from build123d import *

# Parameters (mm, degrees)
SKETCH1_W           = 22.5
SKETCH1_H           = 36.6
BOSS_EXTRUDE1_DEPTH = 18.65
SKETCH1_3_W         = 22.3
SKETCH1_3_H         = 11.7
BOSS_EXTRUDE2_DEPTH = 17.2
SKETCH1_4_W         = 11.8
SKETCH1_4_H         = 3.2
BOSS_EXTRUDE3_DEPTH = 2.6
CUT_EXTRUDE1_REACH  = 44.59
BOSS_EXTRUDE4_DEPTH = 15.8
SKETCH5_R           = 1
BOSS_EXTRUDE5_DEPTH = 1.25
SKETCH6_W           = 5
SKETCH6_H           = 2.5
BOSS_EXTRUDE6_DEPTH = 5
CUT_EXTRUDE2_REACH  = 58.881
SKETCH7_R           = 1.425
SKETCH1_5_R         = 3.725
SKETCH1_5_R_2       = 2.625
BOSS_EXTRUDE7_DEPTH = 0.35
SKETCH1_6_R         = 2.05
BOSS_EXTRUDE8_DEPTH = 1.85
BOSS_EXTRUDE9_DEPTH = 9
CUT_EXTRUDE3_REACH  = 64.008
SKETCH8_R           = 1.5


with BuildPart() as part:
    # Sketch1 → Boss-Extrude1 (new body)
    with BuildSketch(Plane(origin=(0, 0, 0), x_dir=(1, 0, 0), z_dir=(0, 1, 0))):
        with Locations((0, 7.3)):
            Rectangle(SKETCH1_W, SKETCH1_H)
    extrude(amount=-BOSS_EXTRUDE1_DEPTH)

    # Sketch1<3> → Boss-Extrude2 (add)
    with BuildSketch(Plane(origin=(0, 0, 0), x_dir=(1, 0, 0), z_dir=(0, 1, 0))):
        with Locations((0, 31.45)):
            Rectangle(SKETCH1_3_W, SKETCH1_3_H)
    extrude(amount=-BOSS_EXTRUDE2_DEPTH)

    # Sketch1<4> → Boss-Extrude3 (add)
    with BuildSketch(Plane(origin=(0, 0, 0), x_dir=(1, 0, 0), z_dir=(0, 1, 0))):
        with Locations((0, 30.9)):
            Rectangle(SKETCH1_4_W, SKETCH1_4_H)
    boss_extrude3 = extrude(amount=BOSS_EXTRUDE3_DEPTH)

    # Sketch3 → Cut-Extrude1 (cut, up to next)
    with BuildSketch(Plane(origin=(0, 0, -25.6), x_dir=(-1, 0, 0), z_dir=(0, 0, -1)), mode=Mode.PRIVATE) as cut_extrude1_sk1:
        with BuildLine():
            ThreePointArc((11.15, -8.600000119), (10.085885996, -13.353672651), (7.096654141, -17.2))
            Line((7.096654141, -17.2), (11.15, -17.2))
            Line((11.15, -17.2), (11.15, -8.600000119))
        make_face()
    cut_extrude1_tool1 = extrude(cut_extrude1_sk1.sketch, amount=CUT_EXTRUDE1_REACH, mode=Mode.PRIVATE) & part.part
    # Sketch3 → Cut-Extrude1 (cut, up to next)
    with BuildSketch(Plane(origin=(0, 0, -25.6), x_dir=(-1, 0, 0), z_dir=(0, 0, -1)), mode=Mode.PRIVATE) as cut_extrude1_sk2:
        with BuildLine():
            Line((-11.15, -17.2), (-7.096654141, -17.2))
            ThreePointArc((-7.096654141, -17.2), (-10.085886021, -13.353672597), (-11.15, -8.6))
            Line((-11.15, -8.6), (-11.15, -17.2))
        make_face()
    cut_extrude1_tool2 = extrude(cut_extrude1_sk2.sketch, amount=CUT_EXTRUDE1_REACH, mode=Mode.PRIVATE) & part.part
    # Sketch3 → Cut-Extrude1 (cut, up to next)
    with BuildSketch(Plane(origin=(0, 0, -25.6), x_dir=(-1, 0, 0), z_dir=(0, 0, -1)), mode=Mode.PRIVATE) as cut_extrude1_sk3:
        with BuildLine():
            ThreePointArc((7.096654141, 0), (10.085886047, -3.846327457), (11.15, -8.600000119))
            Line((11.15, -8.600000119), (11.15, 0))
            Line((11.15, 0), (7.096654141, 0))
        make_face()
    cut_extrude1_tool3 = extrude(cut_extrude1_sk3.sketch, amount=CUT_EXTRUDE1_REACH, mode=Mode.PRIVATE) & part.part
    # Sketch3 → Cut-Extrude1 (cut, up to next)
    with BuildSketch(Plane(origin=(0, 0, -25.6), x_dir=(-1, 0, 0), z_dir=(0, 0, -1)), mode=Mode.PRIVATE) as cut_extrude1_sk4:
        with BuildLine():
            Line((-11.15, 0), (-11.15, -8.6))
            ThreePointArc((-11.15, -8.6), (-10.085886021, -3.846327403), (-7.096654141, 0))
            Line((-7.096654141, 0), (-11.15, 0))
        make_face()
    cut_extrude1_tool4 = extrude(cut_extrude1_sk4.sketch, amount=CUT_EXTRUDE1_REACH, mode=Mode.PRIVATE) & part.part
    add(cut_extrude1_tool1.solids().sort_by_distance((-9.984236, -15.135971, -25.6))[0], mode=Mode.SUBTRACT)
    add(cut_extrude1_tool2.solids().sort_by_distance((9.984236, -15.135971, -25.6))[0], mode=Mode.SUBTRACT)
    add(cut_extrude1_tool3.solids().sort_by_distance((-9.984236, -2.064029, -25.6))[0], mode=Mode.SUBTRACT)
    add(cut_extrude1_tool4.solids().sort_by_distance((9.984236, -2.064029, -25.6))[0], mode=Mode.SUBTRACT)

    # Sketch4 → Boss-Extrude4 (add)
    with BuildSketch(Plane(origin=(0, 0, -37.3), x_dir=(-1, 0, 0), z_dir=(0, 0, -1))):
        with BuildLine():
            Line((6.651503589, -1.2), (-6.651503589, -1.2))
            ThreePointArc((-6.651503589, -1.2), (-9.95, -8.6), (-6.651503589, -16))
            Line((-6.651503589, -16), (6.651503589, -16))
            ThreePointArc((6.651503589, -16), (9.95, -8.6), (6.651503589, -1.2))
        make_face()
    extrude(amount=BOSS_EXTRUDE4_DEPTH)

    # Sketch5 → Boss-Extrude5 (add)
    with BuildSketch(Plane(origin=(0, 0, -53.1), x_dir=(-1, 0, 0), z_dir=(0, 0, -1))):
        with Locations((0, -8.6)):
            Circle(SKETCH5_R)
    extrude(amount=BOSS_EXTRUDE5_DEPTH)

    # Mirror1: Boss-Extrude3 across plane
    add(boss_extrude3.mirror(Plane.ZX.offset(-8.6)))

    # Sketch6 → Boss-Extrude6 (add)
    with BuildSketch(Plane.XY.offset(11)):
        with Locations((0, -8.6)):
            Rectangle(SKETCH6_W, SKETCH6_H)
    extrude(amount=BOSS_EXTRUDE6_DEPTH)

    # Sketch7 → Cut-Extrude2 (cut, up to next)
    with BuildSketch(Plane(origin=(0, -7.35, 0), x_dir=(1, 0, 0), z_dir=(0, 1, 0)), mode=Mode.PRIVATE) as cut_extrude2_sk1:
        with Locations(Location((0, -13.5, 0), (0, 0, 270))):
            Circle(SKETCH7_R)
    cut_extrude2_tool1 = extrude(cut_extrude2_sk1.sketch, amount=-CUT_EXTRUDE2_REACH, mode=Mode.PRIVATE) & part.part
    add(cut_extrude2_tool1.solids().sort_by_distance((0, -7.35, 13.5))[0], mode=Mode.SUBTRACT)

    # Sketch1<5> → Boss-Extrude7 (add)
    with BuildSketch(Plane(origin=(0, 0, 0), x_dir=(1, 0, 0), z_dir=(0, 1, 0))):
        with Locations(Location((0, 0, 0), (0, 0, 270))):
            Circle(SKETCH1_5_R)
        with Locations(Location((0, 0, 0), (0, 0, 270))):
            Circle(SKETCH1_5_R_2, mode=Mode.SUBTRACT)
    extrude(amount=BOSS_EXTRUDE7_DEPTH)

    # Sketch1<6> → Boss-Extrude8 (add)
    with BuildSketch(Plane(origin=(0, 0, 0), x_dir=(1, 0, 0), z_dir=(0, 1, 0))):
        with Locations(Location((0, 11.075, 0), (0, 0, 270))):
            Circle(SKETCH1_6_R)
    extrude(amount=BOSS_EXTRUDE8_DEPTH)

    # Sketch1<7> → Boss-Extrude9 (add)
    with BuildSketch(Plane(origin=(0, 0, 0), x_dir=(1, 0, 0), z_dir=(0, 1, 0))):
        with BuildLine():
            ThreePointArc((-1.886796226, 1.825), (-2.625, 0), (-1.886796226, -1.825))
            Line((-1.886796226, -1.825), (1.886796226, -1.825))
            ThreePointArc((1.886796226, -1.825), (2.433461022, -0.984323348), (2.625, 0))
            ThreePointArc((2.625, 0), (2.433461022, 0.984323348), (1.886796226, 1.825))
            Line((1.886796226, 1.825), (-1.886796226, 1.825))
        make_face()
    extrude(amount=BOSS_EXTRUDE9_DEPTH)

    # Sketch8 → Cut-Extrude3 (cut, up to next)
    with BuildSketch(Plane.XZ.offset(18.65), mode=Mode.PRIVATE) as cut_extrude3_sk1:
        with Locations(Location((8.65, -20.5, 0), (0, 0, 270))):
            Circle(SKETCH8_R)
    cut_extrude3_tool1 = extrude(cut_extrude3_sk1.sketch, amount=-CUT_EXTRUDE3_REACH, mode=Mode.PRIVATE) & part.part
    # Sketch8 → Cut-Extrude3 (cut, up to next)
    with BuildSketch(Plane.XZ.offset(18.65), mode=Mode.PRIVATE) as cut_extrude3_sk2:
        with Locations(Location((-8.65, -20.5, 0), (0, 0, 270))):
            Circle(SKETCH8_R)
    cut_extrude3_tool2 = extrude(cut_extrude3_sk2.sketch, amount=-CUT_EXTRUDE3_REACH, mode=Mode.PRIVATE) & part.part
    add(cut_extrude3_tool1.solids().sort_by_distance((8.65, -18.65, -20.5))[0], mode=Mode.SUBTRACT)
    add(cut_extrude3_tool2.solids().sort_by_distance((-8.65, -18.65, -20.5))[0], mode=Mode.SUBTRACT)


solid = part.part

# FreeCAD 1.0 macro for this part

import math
import FreeCAD as App
import Part
import Sketcher

V = App.Vector

doc = App.newDocument("Part")
body = doc.addObject("PartDesign::Body", "Body")

sketch1 = body.newObject("Sketcher::SketchObject", "Sketch")
sketch1.AttachmentSupport = (doc.getObject("XZ_Plane"), [""])
sketch1.MapMode = "FlatFace"
sketch1.addGeometry(Part.LineSegment(V(-11, -26, 0), V(-11, 11, 0)), False)
sketch1.addGeometry(Part.LineSegment(V(-11, 11, 0), V(11, 11, 0)), False)
sketch1.addGeometry(Part.LineSegment(V(11, 11, 0), V(11, -26, 0)), False)
sketch1.addGeometry(Part.LineSegment(V(11, -26, 0), V(-11, -26, 0)), False)
sketch1.addConstraint(Sketcher.Constraint("Coincident", 0, 2, 1, 1))
sketch1.addConstraint(Sketcher.Constraint("Coincident", 1, 2, 2, 1))
sketch1.addConstraint(Sketcher.Constraint("Coincident", 2, 2, 3, 1))
sketch1.addConstraint(Sketcher.Constraint("Coincident", 3, 2, 0, 1))
sketch1.addConstraint(Sketcher.Constraint("Vertical", 0))
sketch1.addConstraint(Sketcher.Constraint("Horizontal", 1))
sketch1.addConstraint(Sketcher.Constraint("Vertical", 2))
sketch1.addConstraint(Sketcher.Constraint("Horizontal", 3))
sketch1.addConstraint(Sketcher.Constraint("DistanceX", 1, 1, 1, 2, 22.5))
sketch1.addConstraint(Sketcher.Constraint("DistanceY", 0, 1, 0, 2, 36.6))
sketch1.addConstraint(Sketcher.Constraint("DistanceY", -1, 1, 0, 2, 11.0))
sketch1.addConstraint(Sketcher.Constraint("DistanceX", 0, 2, -1, 1, 11.25))
pad1 = body.newObject("PartDesign::Pad", "Pad")
pad1.Profile = sketch1
pad1.Length = 18.65

sketch2 = body.newObject("Sketcher::SketchObject", "Sketch001")
sketch2.AttachmentSupport = (doc.getObject("XZ_Plane"), [""])
sketch2.MapMode = "FlatFace"
sketch2.addGeometry(Part.LineSegment(V(-11, -37, 0), V(-11, -26, 0)), False)
sketch2.addGeometry(Part.LineSegment(V(-11, -26, 0), V(11, -26, 0)), False)
sketch2.addGeometry(Part.LineSegment(V(11, -26, 0), V(11, -37, 0)), False)
sketch2.addGeometry(Part.LineSegment(V(11, -37, 0), V(-11, -37, 0)), False)
sketch2.addConstraint(Sketcher.Constraint("Coincident", 0, 2, 1, 1))
sketch2.addConstraint(Sketcher.Constraint("Coincident", 1, 2, 2, 1))
sketch2.addConstraint(Sketcher.Constraint("Coincident", 2, 2, 3, 1))
sketch2.addConstraint(Sketcher.Constraint("Coincident", 3, 2, 0, 1))
sketch2.addConstraint(Sketcher.Constraint("Vertical", 0))
sketch2.addConstraint(Sketcher.Constraint("Horizontal", 1))
sketch2.addConstraint(Sketcher.Constraint("Vertical", 2))
sketch2.addConstraint(Sketcher.Constraint("Horizontal", 3))
sketch2.addConstraint(Sketcher.Constraint("DistanceX", 1, 1, 1, 2, 22.3))
sketch2.addConstraint(Sketcher.Constraint("DistanceY", 0, 1, 0, 2, 11.7))
sketch2.addConstraint(Sketcher.Constraint("DistanceY", 0, 2, -1, 1, 25.6))
sketch2.addConstraint(Sketcher.Constraint("DistanceX", 0, 2, -1, 1, 11.15))
pad2 = body.newObject("PartDesign::Pad", "Pad001")
pad2.Profile = sketch2
pad2.Length = 17.2

sketch3 = body.newObject("Sketcher::SketchObject", "Sketch002")
sketch3.AttachmentSupport = (doc.getObject("XZ_Plane"), [""])
sketch3.MapMode = "FlatFace"
sketch3.addGeometry(Part.LineSegment(V(-5.9, -32.5, 0), V(-5.9, -29.3, 0)), False)
sketch3.addGeometry(Part.LineSegment(V(-5.9, -29.3, 0), V(5.9, -29.3, 0)), False)
sketch3.addGeometry(Part.LineSegment(V(5.9, -29.3, 0), V(5.9, -32.5, 0)), False)
sketch3.addGeometry(Part.LineSegment(V(5.9, -32.5, 0), V(-5.9, -32.5, 0)), False)
sketch3.addConstraint(Sketcher.Constraint("Coincident", 0, 2, 1, 1))
sketch3.addConstraint(Sketcher.Constraint("Coincident", 1, 2, 2, 1))
sketch3.addConstraint(Sketcher.Constraint("Coincident", 2, 2, 3, 1))
sketch3.addConstraint(Sketcher.Constraint("Coincident", 3, 2, 0, 1))
sketch3.addConstraint(Sketcher.Constraint("Vertical", 0))
sketch3.addConstraint(Sketcher.Constraint("Horizontal", 1))
sketch3.addConstraint(Sketcher.Constraint("Vertical", 2))
sketch3.addConstraint(Sketcher.Constraint("Horizontal", 3))
sketch3.addConstraint(Sketcher.Constraint("DistanceX", 1, 1, 1, 2, 11.8))
sketch3.addConstraint(Sketcher.Constraint("DistanceY", 0, 1, 0, 2, 3.2))
sketch3.addConstraint(Sketcher.Constraint("DistanceX", 0, 2, -1, 1, 5.9))
sketch3.addConstraint(Sketcher.Constraint("DistanceY", 0, 2, -1, 1, 29.3))
pad3 = body.newObject("PartDesign::Pad", "Pad002")
pad3.Profile = sketch3
pad3.Length = 2.6
pad3.Reversed = True

sketch4 = body.newObject("Sketcher::SketchObject", "Sketch003")
sketch4.AttachmentSupport = (doc.getObject("XY_Plane"), [""])
sketch4.MapMode = "FlatFace"
sketch4.AttachmentOffset = App.Placement(V(0, 0, -25.6), App.Rotation())
sketch4.addGeometry(Part.ArcOfCircle(Part.Circle(V(0, -8.6, 0), V(0, 0, 1), 11.2), math.radians(-180), math.radians(-130)), False)
sketch4.addGeometry(Part.LineSegment(V(-7.1, -17.2, 0), V(-11.2, -17.2, 0)), False)
sketch4.addGeometry(Part.LineSegment(V(-11.2, -17.2, 0), V(-11.2, -8.6, 0)), False)
sketch4.addConstraint(Sketcher.Constraint("Coincident", 0, 2, 1, 1))
sketch4.addConstraint(Sketcher.Constraint("Coincident", 1, 2, 2, 1))
sketch4.addConstraint(Sketcher.Constraint("Tangent", 2, 2, 0, 1))
sketch4.addConstraint(Sketcher.Constraint("Horizontal", 1))
sketch4.addConstraint(Sketcher.Constraint("Vertical", 2))
sketch4.addConstraint(Sketcher.Constraint("PointOnObject", 0, 3, -2))
sketch4.addConstraint(Sketcher.Constraint("Radius", 0, 11.15))
sketch4.addConstraint(Sketcher.Constraint("DistanceY", 2, 1, 2, 2, 8.6))
sketch4.addConstraint(Sketcher.Constraint("DistanceY", 0, 3, -1, 1, 8.6))
pocket1 = body.newObject("PartDesign::Pocket", "Pocket")
pocket1.Profile = sketch4
pocket1.Type = "UpToFirst"

sketch5 = body.newObject("Sketcher::SketchObject", "Sketch004")
sketch5.AttachmentSupport = (doc.getObject("XY_Plane"), [""])
sketch5.MapMode = "FlatFace"
sketch5.AttachmentOffset = App.Placement(V(0, 0, -25.6), App.Rotation())
sketch5.addGeometry(Part.LineSegment(V(11.2, -17.2, 0), V(7.1, -17.2, 0)), False)
sketch5.addGeometry(Part.ArcOfCircle(Part.Circle(V(0, -8.6, 0), V(0, 0, 1), 11.2), math.radians(-50), math.radians(0)), False)
sketch5.addGeometry(Part.LineSegment(V(11.2, -8.6, 0), V(11.2, -17.2, 0)), False)
sketch5.addConstraint(Sketcher.Constraint("Coincident", 0, 2, 1, 1))
sketch5.addConstraint(Sketcher.Constraint("Tangent", 1, 2, 2, 1))
sketch5.addConstraint(Sketcher.Constraint("Coincident", 2, 2, 0, 1))
sketch5.addConstraint(Sketcher.Constraint("Horizontal", 0))
sketch5.addConstraint(Sketcher.Constraint("Vertical", 2))
sketch5.addConstraint(Sketcher.Constraint("PointOnObject", 1, 3, -2))
sketch5.addConstraint(Sketcher.Constraint("Radius", 1, 11.15))
sketch5.addConstraint(Sketcher.Constraint("DistanceY", 2, 2, 2, 1, 8.6))
sketch5.addConstraint(Sketcher.Constraint("DistanceY", 1, 3, -1, 1, 8.6))
pocket2 = body.newObject("PartDesign::Pocket", "Pocket001")
pocket2.Profile = sketch5
pocket2.Type = "UpToFirst"

sketch6 = body.newObject("Sketcher::SketchObject", "Sketch005")
sketch6.AttachmentSupport = (doc.getObject("XY_Plane"), [""])
sketch6.MapMode = "FlatFace"
sketch6.AttachmentOffset = App.Placement(V(0, 0, -25.6), App.Rotation())
sketch6.addGeometry(Part.ArcOfCircle(Part.Circle(V(0, -8.6, 0), V(0, 0, 1), 11.2), math.radians(130), math.radians(180)), False)
sketch6.addGeometry(Part.LineSegment(V(-11.2, -8.6, 0), V(-11.2, 0, 0)), False)
sketch6.addGeometry(Part.LineSegment(V(-11.2, 0, 0), V(-7.1, 0, 0)), False)
sketch6.addConstraint(Sketcher.Constraint("Tangent", 0, 2, 1, 1))
sketch6.addConstraint(Sketcher.Constraint("Coincident", 1, 2, 2, 1))
sketch6.addConstraint(Sketcher.Constraint("Coincident", 2, 2, 0, 1))
sketch6.addConstraint(Sketcher.Constraint("Vertical", 1))
sketch6.addConstraint(Sketcher.Constraint("Horizontal", 2))
sketch6.addConstraint(Sketcher.Constraint("PointOnObject", 0, 3, -2))
sketch6.addConstraint(Sketcher.Constraint("PointOnObject", 1, 2, -1))
sketch6.addConstraint(Sketcher.Constraint("Radius", 0, 11.15))
sketch6.addConstraint(Sketcher.Constraint("DistanceY", 1, 1, 1, 2, 8.6))
pocket3 = body.newObject("PartDesign::Pocket", "Pocket002")
pocket3.Profile = sketch6
pocket3.Type = "UpToFirst"

sketch7 = body.newObject("Sketcher::SketchObject", "Sketch006")
sketch7.AttachmentSupport = (doc.getObject("XY_Plane"), [""])
sketch7.MapMode = "FlatFace"
sketch7.AttachmentOffset = App.Placement(V(0, 0, -25.6), App.Rotation())
sketch7.addGeometry(Part.LineSegment(V(11.2, 0, 0), V(11.2, -8.6, 0)), False)
sketch7.addGeometry(Part.ArcOfCircle(Part.Circle(V(0, -8.6, 0), V(0, 0, 1), 11.2), math.radians(0), math.radians(50)), False)
sketch7.addGeometry(Part.LineSegment(V(7.1, 0, 0), V(11.2, 0, 0)), False)
sketch7.addConstraint(Sketcher.Constraint("Tangent", 0, 2, 1, 1))
sketch7.addConstraint(Sketcher.Constraint("Coincident", 1, 2, 2, 1))
sketch7.addConstraint(Sketcher.Constraint("Coincident", 2, 2, 0, 1))
sketch7.addConstraint(Sketcher.Constraint("Vertical", 0))
sketch7.addConstraint(Sketcher.Constraint("Horizontal", 2))
sketch7.addConstraint(Sketcher.Constraint("PointOnObject", 1, 3, -2))
sketch7.addConstraint(Sketcher.Constraint("PointOnObject", 1, 2, -1))
sketch7.addConstraint(Sketcher.Constraint("Radius", 1, 11.15))
sketch7.addConstraint(Sketcher.Constraint("DistanceY", 0, 2, 0, 1, 8.6))
pocket4 = body.newObject("PartDesign::Pocket", "Pocket003")
pocket4.Profile = sketch7
pocket4.Type = "UpToFirst"

sketch8 = body.newObject("Sketcher::SketchObject", "Sketch007")
sketch8.AttachmentSupport = (doc.getObject("XY_Plane"), [""])
sketch8.MapMode = "FlatFace"
sketch8.AttachmentOffset = App.Placement(V(0, 0, -37.3), App.Rotation())
sketch8.addGeometry(Part.LineSegment(V(-7, -1, 0), V(7, -1, 0)), False)
sketch8.addGeometry(Part.ArcOfCircle(Part.Circle(V(0, -9, 0), V(0, 0, 1), 10), math.radians(-48), math.radians(48)), False)
sketch8.addGeometry(Part.LineSegment(V(7, -16, 0), V(-7, -16, 0)), False)
sketch8.addGeometry(Part.ArcOfCircle(Part.Circle(V(0, -9, 0), V(0, 0, 1), 10), math.radians(132), math.radians(228)), False)
sketch8.addConstraint(Sketcher.Constraint("Coincident", 0, 2, 1, 2))
sketch8.addConstraint(Sketcher.Constraint("Coincident", 1, 1, 2, 1))
sketch8.addConstraint(Sketcher.Constraint("Coincident", 2, 2, 3, 2))
sketch8.addConstraint(Sketcher.Constraint("Coincident", 3, 1, 0, 1))
sketch8.addConstraint(Sketcher.Constraint("Horizontal", 0))
sketch8.addConstraint(Sketcher.Constraint("Horizontal", 2))
sketch8.addConstraint(Sketcher.Constraint("Coincident", 3, 3, 1, 3))
sketch8.addConstraint(Sketcher.Constraint("Equal", 1, 3))
sketch8.addConstraint(Sketcher.Constraint("PointOnObject", 1, 3, -2))
sketch8.addConstraint(Sketcher.Constraint("Vertical", 0, 2, 1, 1))
sketch8.addConstraint(Sketcher.Constraint("Radius", 1, 9.95))
sketch8.addConstraint(Sketcher.Constraint("DistanceY", 1, 1, -1, 1, 16.0))
sketch8.addConstraint(Sketcher.Constraint("DistanceY", 1, 3, -1, 1, 8.6))
pad4 = body.newObject("PartDesign::Pad", "Pad003")
pad4.Profile = sketch8
pad4.Length = 15.8
pad4.Reversed = True

sketch9 = body.newObject("Sketcher::SketchObject", "Sketch008")
sketch9.AttachmentSupport = (doc.getObject("XY_Plane"), [""])
sketch9.MapMode = "FlatFace"
sketch9.AttachmentOffset = App.Placement(V(0, 0, -53.1), App.Rotation())
sketch9.addGeometry(Part.Circle(V(0, -8.6, 0), V(0, 0, 1), 1), False)
sketch9.addConstraint(Sketcher.Constraint("PointOnObject", 0, 3, -2))
sketch9.addConstraint(Sketcher.Constraint("Diameter", 0, 2.0))
sketch9.addConstraint(Sketcher.Constraint("DistanceY", 0, 3, -1, 1, 8.6))
pad5 = body.newObject("PartDesign::Pad", "Pad004")
pad5.Profile = sketch9
pad5.Length = 1.25
pad5.Reversed = True
doc.recompute()

datumplane = body.newObject("PartDesign::Plane", "DatumPlane")
datumplane.AttachmentSupport = (doc.getObject("XZ_Plane"), [""])
datumplane.MapMode = "FlatFace"
datumplane.AttachmentOffset = App.Placement(V(0, 0, 8.6), App.Rotation())
mirrored = body.newObject("PartDesign::Mirrored", "Mirrored")
mirrored.Originals = [pad3]
mirrored.MirrorPlane = (datumplane, [""])
body.Tip = mirrored

sketch10 = body.newObject("Sketcher::SketchObject", "Sketch009")
sketch10.AttachmentSupport = (doc.getObject("XY_Plane"), [""])
sketch10.MapMode = "FlatFace"
sketch10.AttachmentOffset = App.Placement(V(0, 0, 11), App.Rotation())
sketch10.addGeometry(Part.LineSegment(V(-2.5, -7.3, 0), V(-2.5, -9.8, 0)), False)
sketch10.addGeometry(Part.LineSegment(V(-2.5, -9.8, 0), V(2.5, -9.8, 0)), False)
sketch10.addGeometry(Part.LineSegment(V(2.5, -9.8, 0), V(2.5, -7.3, 0)), False)
sketch10.addGeometry(Part.LineSegment(V(2.5, -7.3, 0), V(-2.5, -7.3, 0)), False)
sketch10.addConstraint(Sketcher.Constraint("Coincident", 0, 2, 1, 1))
sketch10.addConstraint(Sketcher.Constraint("Coincident", 1, 2, 2, 1))
sketch10.addConstraint(Sketcher.Constraint("Coincident", 2, 2, 3, 1))
sketch10.addConstraint(Sketcher.Constraint("Coincident", 3, 2, 0, 1))
sketch10.addConstraint(Sketcher.Constraint("Vertical", 0))
sketch10.addConstraint(Sketcher.Constraint("Horizontal", 1))
sketch10.addConstraint(Sketcher.Constraint("Vertical", 2))
sketch10.addConstraint(Sketcher.Constraint("Horizontal", 3))
sketch10.addConstraint(Sketcher.Constraint("DistanceX", 1, 1, 1, 2, 5.0))
sketch10.addConstraint(Sketcher.Constraint("DistanceY", 0, 2, 0, 1, 2.5))
sketch10.addConstraint(Sketcher.Constraint("DistanceX", 0, 2, -1, 1, 2.5))
sketch10.addConstraint(Sketcher.Constraint("DistanceY", 0, 2, -1, 1, 9.85))
pad6 = body.newObject("PartDesign::Pad", "Pad005")
pad6.Profile = sketch10
pad6.Length = 5

sketch11 = body.newObject("Sketcher::SketchObject", "Sketch010")
sketch11.AttachmentSupport = (doc.getObject("XZ_Plane"), [""])
sketch11.MapMode = "FlatFace"
sketch11.AttachmentOffset = App.Placement(V(0, 0, 7.35), App.Rotation())
sketch11.addGeometry(Part.Circle(V(0, 13.5, 0), V(0, 0, 1), 1.4), False)
sketch11.addConstraint(Sketcher.Constraint("PointOnObject", 0, 3, -2))
sketch11.addConstraint(Sketcher.Constraint("Diameter", 0, 2.85))
sketch11.addConstraint(Sketcher.Constraint("DistanceY", -1, 1, 0, 3, 13.5))
pocket5 = body.newObject("PartDesign::Pocket", "Pocket004")
pocket5.Profile = sketch11
pocket5.Type = "UpToFirst"
pocket5.Reversed = True

sketch12 = body.newObject("Sketcher::SketchObject", "Sketch011")
sketch12.AttachmentSupport = (doc.getObject("XZ_Plane"), [""])
sketch12.MapMode = "FlatFace"
sketch12.addGeometry(Part.Circle(V(0, 0, 0), V(0, 0, 1), 3.7), False)
sketch12.addGeometry(Part.Circle(V(0, 0, 0), V(0, 0, 1), 2.6), False)
sketch12.addConstraint(Sketcher.Constraint("Coincident", 0, 3, -1, 1))
sketch12.addConstraint(Sketcher.Constraint("Coincident", 1, 3, -1, 1))
sketch12.addConstraint(Sketcher.Constraint("Diameter", 0, 7.45))
sketch12.addConstraint(Sketcher.Constraint("Diameter", 1, 5.25))
pad7 = body.newObject("PartDesign::Pad", "Pad006")
pad7.Profile = sketch12
pad7.Length = 0.35
pad7.Reversed = True

sketch13 = body.newObject("Sketcher::SketchObject", "Sketch012")
sketch13.AttachmentSupport = (doc.getObject("XZ_Plane"), [""])
sketch13.MapMode = "FlatFace"
sketch13.addGeometry(Part.Circle(V(0, -11.1, 0), V(0, 0, 1), 2), False)
sketch13.addConstraint(Sketcher.Constraint("PointOnObject", 0, 3, -2))
sketch13.addConstraint(Sketcher.Constraint("Diameter", 0, 4.1))
sketch13.addConstraint(Sketcher.Constraint("DistanceY", 0, 3, -1, 1, 11.075))
pad8 = body.newObject("PartDesign::Pad", "Pad007")
pad8.Profile = sketch13
pad8.Length = 1.85
pad8.Reversed = True

sketch14 = body.newObject("Sketcher::SketchObject", "Sketch013")
sketch14.AttachmentSupport = (doc.getObject("XZ_Plane"), [""])
sketch14.MapMode = "FlatFace"
sketch14.addGeometry(Part.ArcOfCircle(Part.Circle(V(0, 0, 0), V(0, 0, 1), 2.6), math.radians(136), math.radians(224)), False)
sketch14.addGeometry(Part.LineSegment(V(-1.9, 1.8, 0), V(1.9, 1.8, 0)), False)
sketch14.addGeometry(Part.ArcOfCircle(Part.Circle(V(0, 0, 0), V(0, 0, 1), 2.6), math.radians(0), math.radians(44)), False)
sketch14.addGeometry(Part.ArcOfCircle(Part.Circle(V(0, 0, 0), V(0, 0, 1), 2.6), math.radians(-44), math.radians(0)), False)
sketch14.addGeometry(Part.LineSegment(V(1.9, -1.8, 0), V(-1.9, -1.8, 0)), False)
sketch14.addConstraint(Sketcher.Constraint("Coincident", 0, 1, 1, 1))
sketch14.addConstraint(Sketcher.Constraint("Coincident", 1, 2, 2, 2))
sketch14.addConstraint(Sketcher.Constraint("Tangent", 2, 1, 3, 2))
sketch14.addConstraint(Sketcher.Constraint("Coincident", 3, 1, 4, 1))
sketch14.addConstraint(Sketcher.Constraint("Coincident", 4, 2, 0, 2))
sketch14.addConstraint(Sketcher.Constraint("Horizontal", 1))
sketch14.addConstraint(Sketcher.Constraint("Horizontal", 4))
sketch14.addConstraint(Sketcher.Constraint("Coincident", 0, 3, -1, 1))
sketch14.addConstraint(Sketcher.Constraint("Coincident", 2, 3, -1, 1))
sketch14.addConstraint(Sketcher.Constraint("Equal", 0, 2))
sketch14.addConstraint(Sketcher.Constraint("Equal", 2, 3))
sketch14.addConstraint(Sketcher.Constraint("PointOnObject", 2, 1, -1))
sketch14.addConstraint(Sketcher.Constraint("Vertical", 1, 2, 3, 1))
sketch14.addConstraint(Sketcher.Constraint("Radius", 0, 2.625))
sketch14.addConstraint(Sketcher.Constraint("DistanceY", 3, 1, 1, 2, 3.65))
pad9 = body.newObject("PartDesign::Pad", "Pad008")
pad9.Profile = sketch14
pad9.Length = 9
pad9.Reversed = True

sketch15 = body.newObject("Sketcher::SketchObject", "Sketch014")
sketch15.AttachmentSupport = (doc.getObject("XZ_Plane"), [""])
sketch15.MapMode = "FlatFace"
sketch15.AttachmentOffset = App.Placement(V(0, 0, 18.65), App.Rotation())
sketch15.addGeometry(Part.Circle(V(8.7, -20.5, 0), V(0, 0, 1), 1.5), False)
sketch15.addConstraint(Sketcher.Constraint("Diameter", 0, 3.0))
sketch15.addConstraint(Sketcher.Constraint("DistanceY", 0, 3, -1, 1, 20.5))
sketch15.addConstraint(Sketcher.Constraint("DistanceX", -1, 1, 0, 3, 8.65))
pocket6 = body.newObject("PartDesign::Pocket", "Pocket005")
pocket6.Profile = sketch15
pocket6.Type = "UpToFirst"

sketch16 = body.newObject("Sketcher::SketchObject", "Sketch015")
sketch16.AttachmentSupport = (doc.getObject("XZ_Plane"), [""])
sketch16.MapMode = "FlatFace"
sketch16.AttachmentOffset = App.Placement(V(0, 0, 18.65), App.Rotation())
sketch16.addGeometry(Part.Circle(V(-8.7, -20.5, 0), V(0, 0, 1), 1.5), False)
sketch16.addConstraint(Sketcher.Constraint("Diameter", 0, 3.0))
sketch16.addConstraint(Sketcher.Constraint("DistanceY", 0, 3, -1, 1, 20.5))
sketch16.addConstraint(Sketcher.Constraint("DistanceX", 0, 3, -1, 1, 8.65))
pocket7 = body.newObject("PartDesign::Pocket", "Pocket006")
pocket7.Profile = sketch16
pocket7.Type = "UpToFirst"

doc.recompute()
